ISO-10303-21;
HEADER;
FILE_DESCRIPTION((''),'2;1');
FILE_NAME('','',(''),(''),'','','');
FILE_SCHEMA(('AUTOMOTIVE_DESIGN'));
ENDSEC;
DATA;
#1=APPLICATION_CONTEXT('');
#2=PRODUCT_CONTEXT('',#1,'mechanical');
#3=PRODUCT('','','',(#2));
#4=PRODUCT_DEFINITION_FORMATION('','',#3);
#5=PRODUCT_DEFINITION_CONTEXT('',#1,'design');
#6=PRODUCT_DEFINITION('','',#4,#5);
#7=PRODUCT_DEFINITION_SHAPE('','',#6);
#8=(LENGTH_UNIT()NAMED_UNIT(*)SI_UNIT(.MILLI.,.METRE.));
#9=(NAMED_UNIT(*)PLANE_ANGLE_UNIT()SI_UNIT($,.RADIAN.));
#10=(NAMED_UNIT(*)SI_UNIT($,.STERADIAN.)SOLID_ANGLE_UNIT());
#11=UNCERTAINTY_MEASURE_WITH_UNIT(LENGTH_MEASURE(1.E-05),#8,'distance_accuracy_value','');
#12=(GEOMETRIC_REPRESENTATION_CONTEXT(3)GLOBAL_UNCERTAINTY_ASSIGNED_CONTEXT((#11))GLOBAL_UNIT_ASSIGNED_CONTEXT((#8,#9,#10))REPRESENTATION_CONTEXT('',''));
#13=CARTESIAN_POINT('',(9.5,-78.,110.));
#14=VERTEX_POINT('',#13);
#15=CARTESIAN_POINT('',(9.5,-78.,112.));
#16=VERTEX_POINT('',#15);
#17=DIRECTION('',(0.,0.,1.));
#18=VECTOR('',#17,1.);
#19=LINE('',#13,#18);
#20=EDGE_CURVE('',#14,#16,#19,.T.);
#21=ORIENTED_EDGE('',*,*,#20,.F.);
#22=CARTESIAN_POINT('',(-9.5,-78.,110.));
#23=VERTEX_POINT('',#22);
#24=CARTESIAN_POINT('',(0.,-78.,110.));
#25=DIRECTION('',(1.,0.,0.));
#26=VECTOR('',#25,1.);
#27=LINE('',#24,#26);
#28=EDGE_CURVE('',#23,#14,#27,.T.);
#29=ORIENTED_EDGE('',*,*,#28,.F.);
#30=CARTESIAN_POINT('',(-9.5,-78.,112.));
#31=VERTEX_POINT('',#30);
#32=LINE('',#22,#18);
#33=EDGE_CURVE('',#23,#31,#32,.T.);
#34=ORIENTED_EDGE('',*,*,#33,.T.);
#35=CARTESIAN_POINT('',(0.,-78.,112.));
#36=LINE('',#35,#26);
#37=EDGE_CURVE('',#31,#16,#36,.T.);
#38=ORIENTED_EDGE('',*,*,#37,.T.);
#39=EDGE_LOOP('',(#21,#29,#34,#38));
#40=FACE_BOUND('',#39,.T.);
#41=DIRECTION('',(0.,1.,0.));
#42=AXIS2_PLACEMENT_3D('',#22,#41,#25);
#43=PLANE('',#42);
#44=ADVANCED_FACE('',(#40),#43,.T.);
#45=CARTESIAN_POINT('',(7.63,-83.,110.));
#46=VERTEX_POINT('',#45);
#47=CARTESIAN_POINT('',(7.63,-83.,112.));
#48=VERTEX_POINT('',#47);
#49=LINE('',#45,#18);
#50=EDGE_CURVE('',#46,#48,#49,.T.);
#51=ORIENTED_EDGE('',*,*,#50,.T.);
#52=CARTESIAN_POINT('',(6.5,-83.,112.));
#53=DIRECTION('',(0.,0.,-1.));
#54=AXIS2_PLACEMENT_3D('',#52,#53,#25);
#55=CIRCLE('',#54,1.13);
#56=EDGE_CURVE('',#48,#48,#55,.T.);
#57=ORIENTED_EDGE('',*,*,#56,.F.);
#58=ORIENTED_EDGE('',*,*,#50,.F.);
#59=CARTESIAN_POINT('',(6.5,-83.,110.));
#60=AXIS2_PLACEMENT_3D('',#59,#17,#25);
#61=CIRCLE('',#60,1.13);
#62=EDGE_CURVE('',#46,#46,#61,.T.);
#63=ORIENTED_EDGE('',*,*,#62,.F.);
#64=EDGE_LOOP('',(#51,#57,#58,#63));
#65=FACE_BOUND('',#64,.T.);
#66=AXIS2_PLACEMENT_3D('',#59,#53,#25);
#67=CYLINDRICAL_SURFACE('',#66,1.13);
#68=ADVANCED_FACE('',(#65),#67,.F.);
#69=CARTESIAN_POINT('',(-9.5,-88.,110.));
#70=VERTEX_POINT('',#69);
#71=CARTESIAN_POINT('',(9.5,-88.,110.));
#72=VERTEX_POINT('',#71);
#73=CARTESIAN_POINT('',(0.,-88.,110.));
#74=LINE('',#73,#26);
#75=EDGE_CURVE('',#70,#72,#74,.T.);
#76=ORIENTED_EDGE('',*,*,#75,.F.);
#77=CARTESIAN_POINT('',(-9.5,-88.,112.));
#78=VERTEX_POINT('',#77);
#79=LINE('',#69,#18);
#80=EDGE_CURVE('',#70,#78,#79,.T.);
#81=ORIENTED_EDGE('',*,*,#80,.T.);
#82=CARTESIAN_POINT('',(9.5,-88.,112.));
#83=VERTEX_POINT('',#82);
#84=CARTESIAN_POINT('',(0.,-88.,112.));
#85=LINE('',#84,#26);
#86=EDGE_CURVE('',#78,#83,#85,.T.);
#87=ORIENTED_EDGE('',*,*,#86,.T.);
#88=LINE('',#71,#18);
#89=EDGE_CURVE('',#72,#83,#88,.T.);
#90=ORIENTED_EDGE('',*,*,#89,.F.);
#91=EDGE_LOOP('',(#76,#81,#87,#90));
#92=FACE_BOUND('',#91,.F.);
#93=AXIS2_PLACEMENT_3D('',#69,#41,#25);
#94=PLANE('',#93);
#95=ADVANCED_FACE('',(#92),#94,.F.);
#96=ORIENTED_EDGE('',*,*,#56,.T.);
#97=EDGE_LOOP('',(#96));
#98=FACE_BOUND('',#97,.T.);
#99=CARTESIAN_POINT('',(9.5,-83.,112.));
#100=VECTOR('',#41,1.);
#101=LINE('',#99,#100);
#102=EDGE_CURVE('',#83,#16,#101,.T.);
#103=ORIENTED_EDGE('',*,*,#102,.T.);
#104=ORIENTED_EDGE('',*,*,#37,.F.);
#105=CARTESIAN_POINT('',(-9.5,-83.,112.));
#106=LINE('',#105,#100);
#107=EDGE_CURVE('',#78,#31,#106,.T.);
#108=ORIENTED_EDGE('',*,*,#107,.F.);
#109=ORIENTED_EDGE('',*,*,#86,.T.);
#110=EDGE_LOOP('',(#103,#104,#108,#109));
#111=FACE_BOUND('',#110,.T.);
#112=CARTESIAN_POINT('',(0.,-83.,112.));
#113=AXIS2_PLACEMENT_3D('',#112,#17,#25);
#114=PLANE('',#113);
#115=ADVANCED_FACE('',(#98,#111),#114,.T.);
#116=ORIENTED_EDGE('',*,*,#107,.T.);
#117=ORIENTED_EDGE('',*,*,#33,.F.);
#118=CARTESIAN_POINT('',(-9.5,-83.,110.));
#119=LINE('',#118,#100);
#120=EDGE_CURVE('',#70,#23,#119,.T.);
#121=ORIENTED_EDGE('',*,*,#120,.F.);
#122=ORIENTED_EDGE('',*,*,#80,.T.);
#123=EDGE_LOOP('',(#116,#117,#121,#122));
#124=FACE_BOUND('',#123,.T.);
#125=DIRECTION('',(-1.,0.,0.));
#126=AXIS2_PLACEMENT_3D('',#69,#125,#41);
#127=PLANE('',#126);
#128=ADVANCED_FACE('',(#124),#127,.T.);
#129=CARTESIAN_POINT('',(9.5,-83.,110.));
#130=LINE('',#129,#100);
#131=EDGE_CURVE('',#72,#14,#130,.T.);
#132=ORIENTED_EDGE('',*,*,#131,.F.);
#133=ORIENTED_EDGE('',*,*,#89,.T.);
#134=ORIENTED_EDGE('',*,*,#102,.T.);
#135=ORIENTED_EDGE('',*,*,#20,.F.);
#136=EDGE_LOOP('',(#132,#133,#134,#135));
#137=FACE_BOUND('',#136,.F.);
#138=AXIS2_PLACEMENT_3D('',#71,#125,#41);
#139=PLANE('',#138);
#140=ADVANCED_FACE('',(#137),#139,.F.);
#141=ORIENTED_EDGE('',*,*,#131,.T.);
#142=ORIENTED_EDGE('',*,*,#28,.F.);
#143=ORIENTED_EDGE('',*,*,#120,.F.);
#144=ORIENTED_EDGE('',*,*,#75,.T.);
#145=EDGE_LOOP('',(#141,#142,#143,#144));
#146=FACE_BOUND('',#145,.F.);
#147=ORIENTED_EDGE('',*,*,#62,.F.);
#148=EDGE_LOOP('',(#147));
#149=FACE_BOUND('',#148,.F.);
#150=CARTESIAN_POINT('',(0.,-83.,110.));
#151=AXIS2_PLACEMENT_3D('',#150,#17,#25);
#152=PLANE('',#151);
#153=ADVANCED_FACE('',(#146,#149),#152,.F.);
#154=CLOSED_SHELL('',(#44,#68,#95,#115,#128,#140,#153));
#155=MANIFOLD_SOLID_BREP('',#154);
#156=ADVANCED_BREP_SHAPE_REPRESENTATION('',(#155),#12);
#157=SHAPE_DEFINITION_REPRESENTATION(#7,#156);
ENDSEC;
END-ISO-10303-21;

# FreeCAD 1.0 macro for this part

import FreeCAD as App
import Part
import Sketcher

doc = App.newDocument("Part")
body = doc.addObject("PartDesign::Body", "Body")

# Sketch on XY plane
sketch1 = doc.addObject("Sketcher::SketchObject", "Sketch")
body.addObject(sketch1)
sketch1.AttachmentSupport = (doc.XY_Plane, [""])
sketch1.MapMode = "FlatFace"
sketch1.addGeometry(Part.Circle(App.Vector(6.5, -83, 0), App.Vector(0, 0, 1), 1.1), False)
sketch1.addConstraint(Sketcher.Constraint("Diameter", 0, 2.26))
sketch1.addConstraint(Sketcher.Constraint("DistanceY", 0, 3, -1, 1, 83.0))
sketch1.addConstraint(Sketcher.Constraint("DistanceX", -1, 1, 0, 3, 6.5))
pad1 = doc.addObject("PartDesign::Pad", "Pad")
body.addObject(pad1)
pad1.Profile = sketch1
pad1.Length = 10
body2 = doc.addObject("PartDesign::Body", "Body001")

# Sketch on XY plane
sketch2 = doc.addObject("Sketcher::SketchObject", "Sketch001")
body2.addObject(sketch2)
sketch2.AttachmentSupport = (doc.getObject("XY_Plane001"), [""])
sketch2.MapMode = "FlatFace"
sketch2.addGeometry(Part.LineSegment(App.Vector(-10, -78, 0), App.Vector(-10, -88, 0)), False)
sketch2.addGeometry(Part.LineSegment(App.Vector(-10, -88, 0), App.Vector(10, -88, 0)), False)
sketch2.addGeometry(Part.LineSegment(App.Vector(10, -88, 0), App.Vector(10, -78, 0)), False)
sketch2.addGeometry(Part.LineSegment(App.Vector(10, -78, 0), App.Vector(-10, -78, 0)), False)
sketch2.addConstraint(Sketcher.Constraint("Coincident", 0, 2, 1, 1))
sketch2.addConstraint(Sketcher.Constraint("Coincident", 1, 2, 2, 1))
sketch2.addConstraint(Sketcher.Constraint("Coincident", 2, 2, 3, 1))
sketch2.addConstraint(Sketcher.Constraint("Coincident", 3, 2, 0, 1))
sketch2.addConstraint(Sketcher.Constraint("Vertical", 0))
sketch2.addConstraint(Sketcher.Constraint("Horizontal", 1))
sketch2.addConstraint(Sketcher.Constraint("Vertical", 2))
sketch2.addConstraint(Sketcher.Constraint("Horizontal", 3))
sketch2.addConstraint(Sketcher.Constraint("DistanceX", 1, 1, 1, 2, 19.0))
sketch2.addConstraint(Sketcher.Constraint("DistanceY", 0, 2, 0, 1, 10.0))
sketch2.addConstraint(Sketcher.Constraint("DistanceY", 0, 2, -1, 1, 88.0))
sketch2.addConstraint(Sketcher.Constraint("DistanceX", 0, 2, -1, 1, 9.5))
pad2 = doc.addObject("PartDesign::Pad", "Pad001")
body2.addObject(pad2)
pad2.Profile = sketch2
pad2.Length = 2
doc.recompute()

boolean = doc.addObject("PartDesign::Boolean", "Boolean")
body2.addObject(boolean)
boolean.Type = "Cut"
boolean.addObjects([body])
body3 = doc.addObject("PartDesign::Body", "Body002")
doc.recompute()

body2.Placement = App.Placement(App.Vector(0, 0, 110), App.Rotation(App.Vector(0, 0, 1), 0))
boolean2 = doc.addObject("PartDesign::Boolean", "Boolean001")
body3.addObject(boolean2)
boolean2.Type = "Fuse"
boolean2.addObjects([body2])

doc.recompute()
